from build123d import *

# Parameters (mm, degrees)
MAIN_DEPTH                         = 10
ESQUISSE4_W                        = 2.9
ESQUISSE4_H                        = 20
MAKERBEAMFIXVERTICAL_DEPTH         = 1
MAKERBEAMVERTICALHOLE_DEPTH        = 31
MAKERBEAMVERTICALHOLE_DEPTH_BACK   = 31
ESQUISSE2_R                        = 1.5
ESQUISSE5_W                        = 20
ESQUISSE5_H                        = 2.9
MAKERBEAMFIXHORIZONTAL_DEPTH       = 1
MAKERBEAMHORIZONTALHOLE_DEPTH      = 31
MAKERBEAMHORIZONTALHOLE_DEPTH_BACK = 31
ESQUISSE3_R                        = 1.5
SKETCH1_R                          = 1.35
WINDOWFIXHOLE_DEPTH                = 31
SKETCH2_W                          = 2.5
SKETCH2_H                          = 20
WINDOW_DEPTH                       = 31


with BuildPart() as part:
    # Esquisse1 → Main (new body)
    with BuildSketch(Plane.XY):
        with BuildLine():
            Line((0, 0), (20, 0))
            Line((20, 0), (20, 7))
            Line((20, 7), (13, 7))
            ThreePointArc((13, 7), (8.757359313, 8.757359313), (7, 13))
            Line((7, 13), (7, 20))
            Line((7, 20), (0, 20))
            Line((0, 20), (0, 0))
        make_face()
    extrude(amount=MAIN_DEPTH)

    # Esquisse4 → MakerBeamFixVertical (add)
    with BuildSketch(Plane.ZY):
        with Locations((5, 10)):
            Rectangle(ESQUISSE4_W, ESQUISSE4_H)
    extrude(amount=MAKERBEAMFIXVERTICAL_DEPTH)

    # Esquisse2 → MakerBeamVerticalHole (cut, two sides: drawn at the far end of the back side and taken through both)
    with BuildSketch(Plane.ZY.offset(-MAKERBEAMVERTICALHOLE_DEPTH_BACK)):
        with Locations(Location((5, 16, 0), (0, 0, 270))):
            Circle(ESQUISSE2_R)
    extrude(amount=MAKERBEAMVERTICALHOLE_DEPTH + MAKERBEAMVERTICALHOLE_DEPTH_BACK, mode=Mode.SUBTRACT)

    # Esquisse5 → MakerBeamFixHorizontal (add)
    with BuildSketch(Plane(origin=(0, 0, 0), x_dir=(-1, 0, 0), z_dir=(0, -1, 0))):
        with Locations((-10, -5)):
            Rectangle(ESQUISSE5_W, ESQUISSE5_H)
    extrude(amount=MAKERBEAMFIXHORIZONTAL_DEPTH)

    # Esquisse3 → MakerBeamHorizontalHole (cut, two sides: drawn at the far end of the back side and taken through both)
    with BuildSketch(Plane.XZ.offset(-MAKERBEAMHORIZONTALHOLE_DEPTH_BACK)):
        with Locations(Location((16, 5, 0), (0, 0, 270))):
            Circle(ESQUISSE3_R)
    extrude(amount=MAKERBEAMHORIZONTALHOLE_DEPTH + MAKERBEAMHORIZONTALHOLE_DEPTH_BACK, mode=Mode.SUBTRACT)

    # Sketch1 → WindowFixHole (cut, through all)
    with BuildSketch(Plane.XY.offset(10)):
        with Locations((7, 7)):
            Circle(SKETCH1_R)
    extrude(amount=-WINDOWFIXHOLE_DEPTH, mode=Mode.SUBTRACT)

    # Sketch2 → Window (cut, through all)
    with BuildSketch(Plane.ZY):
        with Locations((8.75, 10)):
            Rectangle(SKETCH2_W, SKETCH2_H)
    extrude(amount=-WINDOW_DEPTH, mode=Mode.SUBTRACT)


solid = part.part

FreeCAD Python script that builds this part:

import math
import FreeCAD as App
import Part
import Sketcher


def add_polygon(sketch, points):
    """Adds a closed chain of lines whose ends are joined by coincident constraints."""
    first, n = sketch.GeometryCount, len(points)
    for a, b in zip(points, points[1:] + points[:1]):
        sketch.addGeometry(Part.LineSegment(App.Vector(*a, 0), App.Vector(*b, 0)), False)
    for i in range(n):
        sketch.addConstraint(Sketcher.Constraint("Coincident", first + i, 2, first + (i + 1) % n, 1))

doc = App.newDocument("Part")
body = doc.addObject("PartDesign::Body", "Body")

# Sketch on XY plane
sketch1 = body.newObject("Sketcher::SketchObject", "Sketch")
sketch1.AttachmentSupport = (doc.getObject("XY_Plane"), [""])
sketch1.MapMode = "FlatFace"
sketch1.addGeometry(Part.LineSegment(App.Vector(0, 0, 0), App.Vector(20, 0, 0)), False)
sketch1.addGeometry(Part.LineSegment(App.Vector(20, 0, 0), App.Vector(20, 7, 0)), False)
sketch1.addGeometry(Part.LineSegment(App.Vector(20, 7, 0), App.Vector(13, 7, 0)), False)
sketch1.addGeometry(Part.ArcOfCircle(Part.Circle(App.Vector(13, 13, 0), App.Vector(0, 0, 1), 6), math.radians(180), math.radians(270)), False)
sketch1.addGeometry(Part.LineSegment(App.Vector(7, 13, 0), App.Vector(7, 20, 0)), False)
sketch1.addGeometry(Part.LineSegment(App.Vector(7, 20, 0), App.Vector(0, 20, 0)), False)
sketch1.addGeometry(Part.LineSegment(App.Vector(0, 20, 0), App.Vector(0, 0, 0)), False)
sketch1.addConstraint(Sketcher.Constraint("Coincident", 0, 2, 1, 1))
sketch1.addConstraint(Sketcher.Constraint("Coincident", 1, 2, 2, 1))
sketch1.addConstraint(Sketcher.Constraint("Tangent", 2, 2, 3, 2))
sketch1.addConstraint(Sketcher.Constraint("Tangent", 3, 1, 4, 1))
sketch1.addConstraint(Sketcher.Constraint("Coincident", 4, 2, 5, 1))
sketch1.addConstraint(Sketcher.Constraint("Coincident", 5, 2, 6, 1))
sketch1.addConstraint(Sketcher.Constraint("Coincident", 6, 2, 0, 1))
sketch1.addConstraint(Sketcher.Constraint("Horizontal", 0))
sketch1.addConstraint(Sketcher.Constraint("Vertical", 1))
sketch1.addConstraint(Sketcher.Constraint("Horizontal", 2))
sketch1.addConstraint(Sketcher.Constraint("Vertical", 4))
sketch1.addConstraint(Sketcher.Constraint("Horizontal", 5))
sketch1.addConstraint(Sketcher.Constraint("Vertical", 6))
sketch1.addConstraint(Sketcher.Constraint("Coincident", 6, 2, -1, 1))
sketch1.addConstraint(Sketcher.Constraint("Equal", 2, 5))
sketch1.addConstraint(Sketcher.Constraint("Equal", 5, 1))
sketch1.addConstraint(Sketcher.Constraint("Equal", 1, 4))
sketch1.addConstraint(Sketcher.Constraint("Radius", 3, 6.0))
sketch1.addConstraint(Sketcher.Constraint("DistanceX", 0, 1, 0, 2, 20.0))
pad1 = body.newObject("PartDesign::Pad", "Pad")
pad1.Profile = sketch1
pad1.Length = 10

# Sketch on YZ plane
sketch2 = body.newObject("Sketcher::SketchObject", "Sketch001")
sketch2.AttachmentSupport = (doc.getObject("YZ_Plane"), [""])
sketch2.MapMode = "FlatFace"
add_polygon(sketch2, [(20, 3.5), (0, 3.5), (0, 6.5), (20, 6.5)])  # lines 0-3
sketch2.addConstraint(Sketcher.Constraint("Horizontal", 0))
sketch2.addConstraint(Sketcher.Constraint("Vertical", 1))
sketch2.addConstraint(Sketcher.Constraint("Horizontal", 2))
sketch2.addConstraint(Sketcher.Constraint("Vertical", 3))
sketch2.addConstraint(Sketcher.Constraint("PointOnObject", 0, 2, -2))
sketch2.addConstraint(Sketcher.Constraint("DistanceX", 0, 2, 0, 1, 20.0))
sketch2.addConstraint(Sketcher.Constraint("DistanceY", 1, 1, 1, 2, 2.9))
sketch2.addConstraint(Sketcher.Constraint("DistanceY", -1, 1, 0, 2, 3.55))
pad2 = body.newObject("PartDesign::Pad", "Pad001")
pad2.Profile = sketch2
pad2.Length = 1
pad2.Reversed = True

# Sketch on YZ plane
sketch3 = body.newObject("Sketcher::SketchObject", "Sketch002")
sketch3.AttachmentSupport = (doc.getObject("YZ_Plane"), [""])
sketch3.MapMode = "FlatFace"
sketch3.addGeometry(Part.Circle(App.Vector(16, 5, 0), App.Vector(0, 0, 1), 1.5), False)
sketch3.addConstraint(Sketcher.Constraint("Diameter", 0, 3.0))
sketch3.addConstraint(Sketcher.Constraint("DistanceX", -1, 1, 0, 3, 16.0))
sketch3.addConstraint(Sketcher.Constraint("DistanceY", -1, 1, 0, 3, 5.0))
pocket1 = body.newObject("PartDesign::Pocket", "Pocket")
pocket1.Profile = sketch3
pocket1.Type = "ThroughAll"
pocket1.Midplane = True

# Sketch on XZ plane
sketch4 = body.newObject("Sketcher::SketchObject", "Sketch003")
sketch4.AttachmentSupport = (doc.getObject("XZ_Plane"), [""])
sketch4.MapMode = "FlatFace"
add_polygon(sketch4, [(20, 3.5), (20, 6.5), (0, 6.5), (0, 3.5)])  # lines 0-3
sketch4.addConstraint(Sketcher.Constraint("Vertical", 0))
sketch4.addConstraint(Sketcher.Constraint("Horizontal", 1))
sketch4.addConstraint(Sketcher.Constraint("Vertical", 2))
sketch4.addConstraint(Sketcher.Constraint("Horizontal", 3))
sketch4.addConstraint(Sketcher.Constraint("PointOnObject", 1, 2, -2))
sketch4.addConstraint(Sketcher.Constraint("DistanceX", 1, 2, 1, 1, 20.0))
sketch4.addConstraint(Sketcher.Constraint("DistanceY", 0, 1, 0, 2, 2.9))
sketch4.addConstraint(Sketcher.Constraint("DistanceY", -1, 1, 0, 2, 6.45))
pad3 = body.newObject("PartDesign::Pad", "Pad002")
pad3.Profile = sketch4
pad3.Length = 1

# Sketch on XZ plane
sketch5 = body.newObject("Sketcher::SketchObject", "Sketch004")
sketch5.AttachmentSupport = (doc.getObject("XZ_Plane"), [""])
sketch5.MapMode = "FlatFace"
sketch5.addGeometry(Part.Circle(App.Vector(16, 5, 0), App.Vector(0, 0, 1), 1.5), False)
sketch5.addConstraint(Sketcher.Constraint("Diameter", 0, 3.0))
sketch5.addConstraint(Sketcher.Constraint("DistanceX", -1, 1, 0, 3, 16.0))
sketch5.addConstraint(Sketcher.Constraint("DistanceY", -1, 1, 0, 3, 5.0))
pocket2 = body.newObject("PartDesign::Pocket", "Pocket001")
pocket2.Profile = sketch5
pocket2.Type = "ThroughAll"
pocket2.Midplane = True

# Sketch on XY plane
sketch6 = body.newObject("Sketcher::SketchObject", "Sketch005")
sketch6.AttachmentSupport = (doc.getObject("XY_Plane"), [""])
sketch6.MapMode = "FlatFace"
sketch6.AttachmentOffset = App.Placement(App.Vector(0, 0, 10), App.Rotation())
sketch6.addGeometry(Part.Circle(App.Vector(7, 7, 0), App.Vector(0, 0, 1), 1.4), False)
sketch6.addConstraint(Sketcher.Constraint("Diameter", 0, 2.7))
sketch6.addConstraint(Sketcher.Constraint("DistanceX", -1, 1, 0, 3, 7.0))
sketch6.addConstraint(Sketcher.Constraint("DistanceY", -1, 1, 0, 3, 7.0))
pocket3 = body.newObject("PartDesign::Pocket", "Pocket002")
pocket3.Profile = sketch6
pocket3.Type = "ThroughAll"

# Sketch on YZ plane
sketch7 = body.newObject("Sketcher::SketchObject", "Sketch006")
sketch7.AttachmentSupport = (doc.getObject("YZ_Plane"), [""])
sketch7.MapMode = "FlatFace"
add_polygon(sketch7, [(20, 7.5), (0, 7.5), (0, 10), (20, 10)])  # lines 0-3
sketch7.addConstraint(Sketcher.Constraint("Horizontal", 0))
sketch7.addConstraint(Sketcher.Constraint("Vertical", 1))
sketch7.addConstraint(Sketcher.Constraint("Horizontal", 2))
sketch7.addConstraint(Sketcher.Constraint("Vertical", 3))
sketch7.addConstraint(Sketcher.Constraint("PointOnObject", 0, 2, -2))
sketch7.addConstraint(Sketcher.Constraint("DistanceX", 0, 2, 0, 1, 20.0))
sketch7.addConstraint(Sketcher.Constraint("DistanceY", 1, 1, 1, 2, 2.5))
sketch7.addConstraint(Sketcher.Constraint("DistanceY", -1, 1, 1, 2, 10.0))
pocket4 = body.newObject("PartDesign::Pocket", "Pocket003")
pocket4.Profile = sketch7
pocket4.Type = "ThroughAll"
pocket4.Reversed = True

doc.recompute()
